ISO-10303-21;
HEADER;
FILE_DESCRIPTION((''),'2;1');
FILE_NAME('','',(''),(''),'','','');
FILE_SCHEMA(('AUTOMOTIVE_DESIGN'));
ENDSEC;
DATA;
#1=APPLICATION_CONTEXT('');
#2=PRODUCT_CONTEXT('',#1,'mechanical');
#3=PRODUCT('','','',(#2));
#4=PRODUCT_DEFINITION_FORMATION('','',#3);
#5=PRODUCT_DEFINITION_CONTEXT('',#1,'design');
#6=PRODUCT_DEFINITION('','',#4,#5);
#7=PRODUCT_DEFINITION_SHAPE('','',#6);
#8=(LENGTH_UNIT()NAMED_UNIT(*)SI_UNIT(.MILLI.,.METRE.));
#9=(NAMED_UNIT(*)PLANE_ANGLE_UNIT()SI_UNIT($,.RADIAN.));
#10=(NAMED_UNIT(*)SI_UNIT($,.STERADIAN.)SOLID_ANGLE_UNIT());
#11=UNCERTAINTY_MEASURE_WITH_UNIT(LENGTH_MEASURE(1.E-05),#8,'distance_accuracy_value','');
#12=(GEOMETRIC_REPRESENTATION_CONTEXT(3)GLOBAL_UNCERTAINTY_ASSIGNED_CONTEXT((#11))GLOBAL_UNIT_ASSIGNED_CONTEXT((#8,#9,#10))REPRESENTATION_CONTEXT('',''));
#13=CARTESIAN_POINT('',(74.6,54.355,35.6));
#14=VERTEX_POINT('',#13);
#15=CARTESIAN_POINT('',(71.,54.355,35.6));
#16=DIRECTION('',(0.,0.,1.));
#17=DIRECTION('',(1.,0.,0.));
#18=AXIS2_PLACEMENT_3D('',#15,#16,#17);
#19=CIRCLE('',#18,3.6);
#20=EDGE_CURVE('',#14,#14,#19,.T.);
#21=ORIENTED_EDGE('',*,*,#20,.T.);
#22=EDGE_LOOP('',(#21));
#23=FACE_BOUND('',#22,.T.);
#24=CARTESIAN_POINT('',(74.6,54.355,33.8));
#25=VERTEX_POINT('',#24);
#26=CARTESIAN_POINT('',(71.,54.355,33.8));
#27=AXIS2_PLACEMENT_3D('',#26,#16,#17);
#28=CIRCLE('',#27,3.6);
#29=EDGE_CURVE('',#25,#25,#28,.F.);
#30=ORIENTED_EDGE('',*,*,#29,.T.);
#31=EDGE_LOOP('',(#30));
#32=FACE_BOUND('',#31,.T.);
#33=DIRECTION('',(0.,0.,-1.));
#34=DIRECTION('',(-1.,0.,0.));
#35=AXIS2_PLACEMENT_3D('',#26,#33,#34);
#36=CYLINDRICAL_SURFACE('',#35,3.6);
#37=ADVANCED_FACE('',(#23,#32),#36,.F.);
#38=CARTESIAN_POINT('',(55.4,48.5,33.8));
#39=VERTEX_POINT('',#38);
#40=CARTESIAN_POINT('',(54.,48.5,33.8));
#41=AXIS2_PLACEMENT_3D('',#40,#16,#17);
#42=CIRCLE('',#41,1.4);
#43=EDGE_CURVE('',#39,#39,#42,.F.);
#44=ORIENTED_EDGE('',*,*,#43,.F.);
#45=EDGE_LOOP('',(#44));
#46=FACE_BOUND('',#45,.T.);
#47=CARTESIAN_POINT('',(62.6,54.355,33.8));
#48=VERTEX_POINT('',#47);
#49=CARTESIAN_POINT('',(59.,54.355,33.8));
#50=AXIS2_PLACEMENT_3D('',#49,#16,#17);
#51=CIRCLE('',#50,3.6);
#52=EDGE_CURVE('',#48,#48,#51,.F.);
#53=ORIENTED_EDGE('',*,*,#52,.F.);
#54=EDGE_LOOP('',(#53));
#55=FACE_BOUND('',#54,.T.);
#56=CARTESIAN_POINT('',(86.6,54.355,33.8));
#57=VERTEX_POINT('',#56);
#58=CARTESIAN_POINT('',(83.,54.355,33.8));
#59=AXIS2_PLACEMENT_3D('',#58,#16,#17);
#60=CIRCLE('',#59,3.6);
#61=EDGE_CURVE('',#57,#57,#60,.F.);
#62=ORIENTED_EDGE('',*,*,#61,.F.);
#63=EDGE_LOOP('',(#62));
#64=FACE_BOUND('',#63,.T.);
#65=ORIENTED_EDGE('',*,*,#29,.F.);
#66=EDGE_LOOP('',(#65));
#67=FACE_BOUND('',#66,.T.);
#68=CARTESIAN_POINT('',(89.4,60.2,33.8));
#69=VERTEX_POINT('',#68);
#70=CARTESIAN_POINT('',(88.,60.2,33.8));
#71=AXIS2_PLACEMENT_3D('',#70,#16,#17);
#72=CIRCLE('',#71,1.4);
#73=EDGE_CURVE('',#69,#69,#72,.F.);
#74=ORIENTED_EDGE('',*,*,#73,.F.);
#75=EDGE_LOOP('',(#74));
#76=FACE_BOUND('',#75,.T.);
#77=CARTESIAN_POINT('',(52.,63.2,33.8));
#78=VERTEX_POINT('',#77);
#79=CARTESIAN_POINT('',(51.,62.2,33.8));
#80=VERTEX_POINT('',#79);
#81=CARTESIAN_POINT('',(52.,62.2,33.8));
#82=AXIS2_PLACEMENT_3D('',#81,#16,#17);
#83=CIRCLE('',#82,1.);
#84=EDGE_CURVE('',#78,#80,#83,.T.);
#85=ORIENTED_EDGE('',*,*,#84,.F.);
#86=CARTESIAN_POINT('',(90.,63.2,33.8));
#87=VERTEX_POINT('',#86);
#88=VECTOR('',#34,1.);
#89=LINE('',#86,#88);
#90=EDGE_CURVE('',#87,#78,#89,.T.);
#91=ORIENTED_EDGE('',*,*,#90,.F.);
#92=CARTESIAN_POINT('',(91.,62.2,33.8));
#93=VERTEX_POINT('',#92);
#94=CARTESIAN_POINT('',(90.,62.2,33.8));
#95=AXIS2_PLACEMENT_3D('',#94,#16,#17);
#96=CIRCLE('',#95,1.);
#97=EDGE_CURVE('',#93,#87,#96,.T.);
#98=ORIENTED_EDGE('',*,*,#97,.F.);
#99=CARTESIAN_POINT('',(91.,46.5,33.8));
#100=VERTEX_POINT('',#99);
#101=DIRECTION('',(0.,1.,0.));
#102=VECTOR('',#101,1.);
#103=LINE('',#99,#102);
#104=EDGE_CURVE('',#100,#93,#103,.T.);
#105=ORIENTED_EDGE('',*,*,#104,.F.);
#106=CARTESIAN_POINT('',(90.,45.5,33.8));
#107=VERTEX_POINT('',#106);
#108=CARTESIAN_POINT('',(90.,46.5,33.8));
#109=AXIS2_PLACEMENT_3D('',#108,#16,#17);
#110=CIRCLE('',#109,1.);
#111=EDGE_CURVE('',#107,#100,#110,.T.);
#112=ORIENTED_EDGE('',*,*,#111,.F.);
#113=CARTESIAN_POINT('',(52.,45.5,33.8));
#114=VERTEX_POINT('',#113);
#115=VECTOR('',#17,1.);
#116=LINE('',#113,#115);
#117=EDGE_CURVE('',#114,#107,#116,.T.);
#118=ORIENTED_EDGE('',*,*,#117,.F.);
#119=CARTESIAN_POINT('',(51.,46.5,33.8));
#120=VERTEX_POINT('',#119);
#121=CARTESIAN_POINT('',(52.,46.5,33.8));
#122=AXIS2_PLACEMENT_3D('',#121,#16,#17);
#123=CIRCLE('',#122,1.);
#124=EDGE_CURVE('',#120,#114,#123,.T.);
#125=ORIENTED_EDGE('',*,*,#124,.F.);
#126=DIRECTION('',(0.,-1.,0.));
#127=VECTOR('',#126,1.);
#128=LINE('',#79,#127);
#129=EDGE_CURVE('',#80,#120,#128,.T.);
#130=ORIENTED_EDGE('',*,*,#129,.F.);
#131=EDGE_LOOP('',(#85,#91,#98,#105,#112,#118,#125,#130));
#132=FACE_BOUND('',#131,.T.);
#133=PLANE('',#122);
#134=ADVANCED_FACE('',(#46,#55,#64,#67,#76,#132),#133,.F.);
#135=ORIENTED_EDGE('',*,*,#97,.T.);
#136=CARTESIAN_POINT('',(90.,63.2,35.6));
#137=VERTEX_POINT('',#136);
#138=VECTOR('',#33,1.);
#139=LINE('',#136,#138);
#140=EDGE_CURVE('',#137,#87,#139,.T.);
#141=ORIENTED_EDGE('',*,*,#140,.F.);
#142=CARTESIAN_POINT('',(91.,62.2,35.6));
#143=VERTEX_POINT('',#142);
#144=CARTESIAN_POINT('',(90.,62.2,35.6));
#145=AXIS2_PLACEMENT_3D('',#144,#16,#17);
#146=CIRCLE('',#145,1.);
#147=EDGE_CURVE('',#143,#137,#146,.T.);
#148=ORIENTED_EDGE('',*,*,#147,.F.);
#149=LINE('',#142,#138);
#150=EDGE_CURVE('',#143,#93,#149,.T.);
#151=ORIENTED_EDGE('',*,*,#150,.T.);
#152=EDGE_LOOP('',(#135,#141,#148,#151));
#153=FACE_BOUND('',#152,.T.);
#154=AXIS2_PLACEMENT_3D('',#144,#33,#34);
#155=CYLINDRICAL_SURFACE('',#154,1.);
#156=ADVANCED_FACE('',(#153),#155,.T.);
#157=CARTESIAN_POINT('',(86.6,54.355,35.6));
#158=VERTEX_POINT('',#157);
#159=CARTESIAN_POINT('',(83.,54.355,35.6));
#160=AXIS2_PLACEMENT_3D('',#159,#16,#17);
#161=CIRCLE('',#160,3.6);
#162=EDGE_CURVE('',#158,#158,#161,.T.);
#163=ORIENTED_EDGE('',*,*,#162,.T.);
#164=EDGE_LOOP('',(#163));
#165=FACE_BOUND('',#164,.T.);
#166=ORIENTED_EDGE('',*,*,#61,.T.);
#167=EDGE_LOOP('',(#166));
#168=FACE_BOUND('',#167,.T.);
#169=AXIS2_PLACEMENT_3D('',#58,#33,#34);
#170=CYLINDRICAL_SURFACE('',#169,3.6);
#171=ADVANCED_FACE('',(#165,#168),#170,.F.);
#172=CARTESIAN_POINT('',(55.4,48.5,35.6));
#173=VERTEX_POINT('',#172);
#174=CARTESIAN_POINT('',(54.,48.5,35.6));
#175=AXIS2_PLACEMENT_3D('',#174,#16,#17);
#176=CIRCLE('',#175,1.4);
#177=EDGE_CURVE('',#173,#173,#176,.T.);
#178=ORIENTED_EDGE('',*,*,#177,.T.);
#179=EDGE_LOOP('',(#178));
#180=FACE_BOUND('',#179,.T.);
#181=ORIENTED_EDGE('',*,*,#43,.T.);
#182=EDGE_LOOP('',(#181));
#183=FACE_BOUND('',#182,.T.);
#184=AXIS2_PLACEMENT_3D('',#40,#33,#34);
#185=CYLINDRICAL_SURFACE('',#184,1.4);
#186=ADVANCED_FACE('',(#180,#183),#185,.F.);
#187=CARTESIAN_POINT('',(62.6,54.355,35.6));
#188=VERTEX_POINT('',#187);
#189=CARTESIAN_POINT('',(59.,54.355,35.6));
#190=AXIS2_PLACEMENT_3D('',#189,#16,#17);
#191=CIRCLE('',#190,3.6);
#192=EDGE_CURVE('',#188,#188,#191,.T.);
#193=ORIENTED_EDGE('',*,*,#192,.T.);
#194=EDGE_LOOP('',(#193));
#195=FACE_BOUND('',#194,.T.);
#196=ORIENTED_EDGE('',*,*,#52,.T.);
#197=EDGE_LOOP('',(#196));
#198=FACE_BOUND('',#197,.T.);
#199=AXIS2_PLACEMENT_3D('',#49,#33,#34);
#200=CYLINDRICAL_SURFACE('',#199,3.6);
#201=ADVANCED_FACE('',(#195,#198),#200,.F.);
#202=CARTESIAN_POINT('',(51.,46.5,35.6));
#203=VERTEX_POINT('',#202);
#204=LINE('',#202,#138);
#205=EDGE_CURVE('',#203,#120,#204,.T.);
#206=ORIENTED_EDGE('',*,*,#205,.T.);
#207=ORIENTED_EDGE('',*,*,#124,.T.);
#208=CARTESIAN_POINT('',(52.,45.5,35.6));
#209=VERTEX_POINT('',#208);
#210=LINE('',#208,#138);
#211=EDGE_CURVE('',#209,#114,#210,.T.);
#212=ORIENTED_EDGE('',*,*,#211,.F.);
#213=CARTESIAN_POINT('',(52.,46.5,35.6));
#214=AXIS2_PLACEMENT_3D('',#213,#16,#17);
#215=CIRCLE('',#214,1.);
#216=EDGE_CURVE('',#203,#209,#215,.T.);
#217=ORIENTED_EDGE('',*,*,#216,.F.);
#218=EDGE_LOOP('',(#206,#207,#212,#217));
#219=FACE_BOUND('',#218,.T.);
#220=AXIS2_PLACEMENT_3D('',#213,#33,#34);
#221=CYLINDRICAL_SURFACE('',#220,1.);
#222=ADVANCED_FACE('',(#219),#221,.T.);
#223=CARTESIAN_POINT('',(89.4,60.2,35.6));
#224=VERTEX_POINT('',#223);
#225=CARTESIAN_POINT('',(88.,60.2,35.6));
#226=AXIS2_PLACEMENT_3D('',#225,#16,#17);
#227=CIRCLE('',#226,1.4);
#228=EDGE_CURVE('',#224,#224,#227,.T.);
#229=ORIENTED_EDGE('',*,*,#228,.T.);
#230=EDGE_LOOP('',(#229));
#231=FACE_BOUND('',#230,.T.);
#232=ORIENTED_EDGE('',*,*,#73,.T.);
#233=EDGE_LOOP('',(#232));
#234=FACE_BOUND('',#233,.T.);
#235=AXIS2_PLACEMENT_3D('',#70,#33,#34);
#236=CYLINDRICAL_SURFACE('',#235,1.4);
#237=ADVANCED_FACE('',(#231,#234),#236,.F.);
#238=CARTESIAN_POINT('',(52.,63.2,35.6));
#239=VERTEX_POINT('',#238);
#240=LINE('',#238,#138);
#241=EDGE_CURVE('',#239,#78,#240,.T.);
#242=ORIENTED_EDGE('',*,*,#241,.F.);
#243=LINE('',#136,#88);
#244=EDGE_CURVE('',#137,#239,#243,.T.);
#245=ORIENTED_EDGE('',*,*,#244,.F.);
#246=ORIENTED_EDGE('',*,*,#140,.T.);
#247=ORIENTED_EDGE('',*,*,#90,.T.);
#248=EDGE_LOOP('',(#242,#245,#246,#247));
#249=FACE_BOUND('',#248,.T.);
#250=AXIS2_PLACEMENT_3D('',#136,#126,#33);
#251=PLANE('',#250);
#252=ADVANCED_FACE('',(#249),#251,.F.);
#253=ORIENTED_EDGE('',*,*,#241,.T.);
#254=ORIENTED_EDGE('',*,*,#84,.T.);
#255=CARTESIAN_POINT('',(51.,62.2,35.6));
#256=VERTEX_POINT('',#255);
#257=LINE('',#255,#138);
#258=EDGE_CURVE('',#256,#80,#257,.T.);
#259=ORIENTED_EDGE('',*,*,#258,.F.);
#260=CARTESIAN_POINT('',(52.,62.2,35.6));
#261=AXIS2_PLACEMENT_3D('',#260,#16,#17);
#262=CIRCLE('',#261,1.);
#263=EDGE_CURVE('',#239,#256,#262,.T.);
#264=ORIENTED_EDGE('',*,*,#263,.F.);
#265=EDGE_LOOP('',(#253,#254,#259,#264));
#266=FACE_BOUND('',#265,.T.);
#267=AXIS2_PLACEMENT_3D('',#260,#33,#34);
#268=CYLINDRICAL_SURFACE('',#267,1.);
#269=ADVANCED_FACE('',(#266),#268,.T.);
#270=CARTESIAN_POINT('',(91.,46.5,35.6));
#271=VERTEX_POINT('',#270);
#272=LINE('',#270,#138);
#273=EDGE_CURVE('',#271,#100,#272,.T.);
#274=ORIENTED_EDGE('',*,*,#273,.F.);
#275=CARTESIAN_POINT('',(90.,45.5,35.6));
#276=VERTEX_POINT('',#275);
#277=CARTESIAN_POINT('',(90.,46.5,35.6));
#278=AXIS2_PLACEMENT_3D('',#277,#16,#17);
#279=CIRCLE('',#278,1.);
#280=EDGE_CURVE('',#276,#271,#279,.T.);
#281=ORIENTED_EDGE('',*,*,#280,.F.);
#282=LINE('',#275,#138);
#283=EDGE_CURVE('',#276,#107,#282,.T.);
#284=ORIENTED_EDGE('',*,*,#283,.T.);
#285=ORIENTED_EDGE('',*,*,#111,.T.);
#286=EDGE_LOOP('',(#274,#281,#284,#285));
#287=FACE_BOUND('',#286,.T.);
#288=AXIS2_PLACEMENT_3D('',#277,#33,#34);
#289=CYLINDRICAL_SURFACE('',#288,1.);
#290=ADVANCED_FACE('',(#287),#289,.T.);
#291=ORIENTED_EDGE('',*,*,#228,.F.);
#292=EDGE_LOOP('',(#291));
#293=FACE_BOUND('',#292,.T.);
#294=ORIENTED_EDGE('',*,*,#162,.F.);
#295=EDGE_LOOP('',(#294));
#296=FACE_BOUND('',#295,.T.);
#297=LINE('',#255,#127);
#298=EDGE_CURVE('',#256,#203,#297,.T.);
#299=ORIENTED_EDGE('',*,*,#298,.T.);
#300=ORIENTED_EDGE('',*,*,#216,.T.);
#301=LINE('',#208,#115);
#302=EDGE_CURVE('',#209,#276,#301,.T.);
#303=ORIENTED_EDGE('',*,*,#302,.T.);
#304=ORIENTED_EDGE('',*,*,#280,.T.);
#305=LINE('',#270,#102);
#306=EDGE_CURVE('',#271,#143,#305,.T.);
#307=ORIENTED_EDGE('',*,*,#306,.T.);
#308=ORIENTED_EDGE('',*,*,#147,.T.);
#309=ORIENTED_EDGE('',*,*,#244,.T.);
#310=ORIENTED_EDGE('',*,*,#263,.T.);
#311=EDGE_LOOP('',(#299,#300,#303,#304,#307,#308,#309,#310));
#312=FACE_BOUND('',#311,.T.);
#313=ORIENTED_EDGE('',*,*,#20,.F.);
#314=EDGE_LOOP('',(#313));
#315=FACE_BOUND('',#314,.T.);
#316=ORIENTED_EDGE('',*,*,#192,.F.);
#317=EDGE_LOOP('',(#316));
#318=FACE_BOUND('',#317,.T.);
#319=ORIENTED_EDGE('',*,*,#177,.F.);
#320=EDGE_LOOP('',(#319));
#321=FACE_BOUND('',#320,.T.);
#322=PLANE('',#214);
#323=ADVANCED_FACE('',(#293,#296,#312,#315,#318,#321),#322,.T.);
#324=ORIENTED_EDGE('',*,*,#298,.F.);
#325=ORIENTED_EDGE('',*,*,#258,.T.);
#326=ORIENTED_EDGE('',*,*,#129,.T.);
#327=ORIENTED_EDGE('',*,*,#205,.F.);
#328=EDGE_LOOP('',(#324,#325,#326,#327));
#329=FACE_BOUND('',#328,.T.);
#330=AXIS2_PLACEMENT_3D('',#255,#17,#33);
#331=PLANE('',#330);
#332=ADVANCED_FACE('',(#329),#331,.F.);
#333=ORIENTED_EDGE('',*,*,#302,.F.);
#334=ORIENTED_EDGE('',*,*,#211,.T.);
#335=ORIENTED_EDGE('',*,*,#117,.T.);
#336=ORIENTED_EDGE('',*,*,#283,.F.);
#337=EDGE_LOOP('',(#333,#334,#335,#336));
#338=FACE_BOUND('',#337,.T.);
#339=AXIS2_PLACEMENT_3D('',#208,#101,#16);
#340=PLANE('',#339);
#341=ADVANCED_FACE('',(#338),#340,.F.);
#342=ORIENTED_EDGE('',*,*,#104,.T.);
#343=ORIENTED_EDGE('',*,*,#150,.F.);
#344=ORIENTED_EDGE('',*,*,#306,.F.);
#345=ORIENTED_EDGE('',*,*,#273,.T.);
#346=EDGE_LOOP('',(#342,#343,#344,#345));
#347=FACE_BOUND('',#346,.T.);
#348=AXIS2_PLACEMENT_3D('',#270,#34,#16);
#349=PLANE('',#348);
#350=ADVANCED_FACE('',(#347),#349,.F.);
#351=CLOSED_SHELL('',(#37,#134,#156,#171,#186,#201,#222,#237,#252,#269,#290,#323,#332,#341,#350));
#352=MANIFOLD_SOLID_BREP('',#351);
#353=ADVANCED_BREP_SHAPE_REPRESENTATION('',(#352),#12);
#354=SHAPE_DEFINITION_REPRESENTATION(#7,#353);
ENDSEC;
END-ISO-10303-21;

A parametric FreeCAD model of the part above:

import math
import FreeCAD as App
import Part
import Sketcher
Q = App.Units.Quantity

doc = App.newDocument("Part")
params = doc.addObject("Spreadsheet::Sheet", "Params")
for row, (alias, value) in enumerate([
    ("sketch1_radius", "1 mm"),
    ("sketch1_width", "38 mm"),
    ("sketch1_height", "15.7 mm"),
    ("pad1_length", "1.8 mm"),
    ("sketch2_diameter", "7.2 mm"),
    ("sketch2_diameter2", "2.8 mm"),
], start=1):
    params.set(f"A{row}", alias)
    params.set(f"B{row}", "=" + value)
    params.setAlias(f"B{row}", alias)

body = doc.addObject("PartDesign::Body", "Body")

sketch1 = body.newObject("Sketcher::SketchObject", "Sketch")
sketch1.AttachmentSupport = (doc.getObject("XY_Plane"), [""])
sketch1.MapMode = "FlatFace"
sketch1.AttachmentOffset = App.Placement(App.Vector(0, 0, 33.8), App.Rotation())
sketch1.addGeometry(Part.LineSegment(App.Vector(52, 45.5, 0), App.Vector(90, 45.5, 0)), False)
sketch1.addGeometry(Part.ArcOfCircle(Part.Circle(App.Vector(90, 46.5, 0), App.Vector(0, 0, 1), 1), math.radians(-90), math.radians(0)), False)
sketch1.addGeometry(Part.LineSegment(App.Vector(91, 46.5, 0), App.Vector(91, 62.2, 0)), False)
sketch1.addGeometry(Part.ArcOfCircle(Part.Circle(App.Vector(90, 62.2, 0), App.Vector(0, 0, 1), 1), math.radians(0), math.radians(90)), False)
sketch1.addGeometry(Part.LineSegment(App.Vector(90, 63.2, 0), App.Vector(52, 63.2, 0)), False)
sketch1.addGeometry(Part.ArcOfCircle(Part.Circle(App.Vector(52, 62.2, 0), App.Vector(0, 0, 1), 1), math.radians(90), math.radians(180)), False)
sketch1.addGeometry(Part.LineSegment(App.Vector(51, 62.2, 0), App.Vector(51, 46.5, 0)), False)
sketch1.addGeometry(Part.ArcOfCircle(Part.Circle(App.Vector(52, 46.5, 0), App.Vector(0, 0, 1), 1), math.radians(-180), math.radians(-90)), False)
sketch1.addConstraint(Sketcher.Constraint("Tangent", 0, 2, 1, 1))
sketch1.addConstraint(Sketcher.Constraint("Tangent", 1, 2, 2, 1))
sketch1.addConstraint(Sketcher.Constraint("Tangent", 2, 2, 3, 1))
sketch1.addConstraint(Sketcher.Constraint("Tangent", 3, 2, 4, 1))
sketch1.addConstraint(Sketcher.Constraint("Tangent", 4, 2, 5, 1))
sketch1.addConstraint(Sketcher.Constraint("Tangent", 5, 2, 6, 1))
sketch1.addConstraint(Sketcher.Constraint("Tangent", 6, 2, 7, 1))
sketch1.addConstraint(Sketcher.Constraint("Tangent", 7, 2, 0, 1))
sketch1.addConstraint(Sketcher.Constraint("Horizontal", 0))
sketch1.addConstraint(Sketcher.Constraint("Vertical", 2))
sketch1.addConstraint(Sketcher.Constraint("Horizontal", 4))
sketch1.addConstraint(Sketcher.Constraint("Vertical", 6))
sketch1.addConstraint(Sketcher.Constraint("Equal", 1, 3))
sketch1.addConstraint(Sketcher.Constraint("Equal", 3, 5))
sketch1.addConstraint(Sketcher.Constraint("Equal", 5, 7))
sketch1.addConstraint(Sketcher.Constraint("Radius", 1, Q("1 mm")))
sketch1.addConstraint(Sketcher.Constraint("DistanceX", 0, 1, 0, 2, Q("38 mm")))
sketch1.addConstraint(Sketcher.Constraint("DistanceY", 2, 1, 2, 2, Q("15.7 mm")))
sketch1.addConstraint(Sketcher.Constraint("DistanceX", -1, 1, 1, 3, Q("90 mm")))
sketch1.addConstraint(Sketcher.Constraint("DistanceY", -1, 1, 1, 3, Q("46.5 mm")))
sketch1.setExpression("Constraints[15]", "Params.sketch1_radius")
sketch1.setExpression("Constraints[16]", "Params.sketch1_width")
sketch1.setExpression("Constraints[17]", "Params.sketch1_height")
pad1 = body.newObject("PartDesign::Pad", "Pad")
pad1.Profile = sketch1
pad1.setExpression("Length", "Params.pad1_length")

sketch2 = body.newObject("Sketcher::SketchObject", "Sketch001")
sketch2.AttachmentSupport = (doc.getObject("XY_Plane"), [""])
sketch2.MapMode = "FlatFace"
sketch2.addGeometry(Part.Circle(App.Vector(59, 54.4, 0), App.Vector(0, 0, 1), 3.6), False)
sketch2.addGeometry(Part.Circle(App.Vector(71, 54.4, 0), App.Vector(0, 0, 1), 3.6), False)
sketch2.addGeometry(Part.Circle(App.Vector(83, 54.4, 0), App.Vector(0, 0, 1), 3.6), False)
sketch2.addGeometry(Part.Circle(App.Vector(54, 48.5, 0), App.Vector(0, 0, 1), 1.4), False)
sketch2.addGeometry(Part.Circle(App.Vector(88, 60.2, 0), App.Vector(0, 0, 1), 1.4), False)
sketch2.addConstraint(Sketcher.Constraint("Equal", 0, 1))
sketch2.addConstraint(Sketcher.Constraint("Equal", 1, 2))
sketch2.addConstraint(Sketcher.Constraint("Equal", 3, 4))
sketch2.addConstraint(Sketcher.Constraint("Horizontal", 0, 3, 1, 3))
sketch2.addConstraint(Sketcher.Constraint("Horizontal", 1, 3, 2, 3))
sketch2.addConstraint(Sketcher.Constraint("Diameter", 0, Q("7.2 mm")))
sketch2.addConstraint(Sketcher.Constraint("Diameter", 3, Q("2.8 mm")))
sketch2.addConstraint(Sketcher.Constraint("DistanceX", -1, 1, 0, 3, Q("59 mm")))
sketch2.addConstraint(Sketcher.Constraint("DistanceX", -1, 1, 1, 3, Q("71 mm")))
sketch2.addConstraint(Sketcher.Constraint("DistanceX", -1, 1, 2, 3, Q("83 mm")))
sketch2.addConstraint(Sketcher.Constraint("DistanceX", -1, 1, 3, 3, Q("54 mm")))
sketch2.addConstraint(Sketcher.Constraint("DistanceX", -1, 1, 4, 3, Q("88 mm")))
sketch2.addConstraint(Sketcher.Constraint("DistanceY", -1, 1, 3, 3, Q("48.5 mm")))
sketch2.addConstraint(Sketcher.Constraint("DistanceY", -1, 1, 4, 3, Q("60.2 mm")))
sketch2.addConstraint(Sketcher.Constraint("DistanceY", -1, 1, 0, 3, Q("54.355 mm")))
sketch2.setExpression("Constraints[5]", "Params.sketch2_diameter")
sketch2.setExpression("Constraints[6]", "Params.sketch2_diameter2")
pocket1 = body.newObject("PartDesign::Pocket", "Pocket")
pocket1.Profile = sketch2
pocket1.Type = "ThroughAll"
pocket1.Midplane = True

doc.recompute()
